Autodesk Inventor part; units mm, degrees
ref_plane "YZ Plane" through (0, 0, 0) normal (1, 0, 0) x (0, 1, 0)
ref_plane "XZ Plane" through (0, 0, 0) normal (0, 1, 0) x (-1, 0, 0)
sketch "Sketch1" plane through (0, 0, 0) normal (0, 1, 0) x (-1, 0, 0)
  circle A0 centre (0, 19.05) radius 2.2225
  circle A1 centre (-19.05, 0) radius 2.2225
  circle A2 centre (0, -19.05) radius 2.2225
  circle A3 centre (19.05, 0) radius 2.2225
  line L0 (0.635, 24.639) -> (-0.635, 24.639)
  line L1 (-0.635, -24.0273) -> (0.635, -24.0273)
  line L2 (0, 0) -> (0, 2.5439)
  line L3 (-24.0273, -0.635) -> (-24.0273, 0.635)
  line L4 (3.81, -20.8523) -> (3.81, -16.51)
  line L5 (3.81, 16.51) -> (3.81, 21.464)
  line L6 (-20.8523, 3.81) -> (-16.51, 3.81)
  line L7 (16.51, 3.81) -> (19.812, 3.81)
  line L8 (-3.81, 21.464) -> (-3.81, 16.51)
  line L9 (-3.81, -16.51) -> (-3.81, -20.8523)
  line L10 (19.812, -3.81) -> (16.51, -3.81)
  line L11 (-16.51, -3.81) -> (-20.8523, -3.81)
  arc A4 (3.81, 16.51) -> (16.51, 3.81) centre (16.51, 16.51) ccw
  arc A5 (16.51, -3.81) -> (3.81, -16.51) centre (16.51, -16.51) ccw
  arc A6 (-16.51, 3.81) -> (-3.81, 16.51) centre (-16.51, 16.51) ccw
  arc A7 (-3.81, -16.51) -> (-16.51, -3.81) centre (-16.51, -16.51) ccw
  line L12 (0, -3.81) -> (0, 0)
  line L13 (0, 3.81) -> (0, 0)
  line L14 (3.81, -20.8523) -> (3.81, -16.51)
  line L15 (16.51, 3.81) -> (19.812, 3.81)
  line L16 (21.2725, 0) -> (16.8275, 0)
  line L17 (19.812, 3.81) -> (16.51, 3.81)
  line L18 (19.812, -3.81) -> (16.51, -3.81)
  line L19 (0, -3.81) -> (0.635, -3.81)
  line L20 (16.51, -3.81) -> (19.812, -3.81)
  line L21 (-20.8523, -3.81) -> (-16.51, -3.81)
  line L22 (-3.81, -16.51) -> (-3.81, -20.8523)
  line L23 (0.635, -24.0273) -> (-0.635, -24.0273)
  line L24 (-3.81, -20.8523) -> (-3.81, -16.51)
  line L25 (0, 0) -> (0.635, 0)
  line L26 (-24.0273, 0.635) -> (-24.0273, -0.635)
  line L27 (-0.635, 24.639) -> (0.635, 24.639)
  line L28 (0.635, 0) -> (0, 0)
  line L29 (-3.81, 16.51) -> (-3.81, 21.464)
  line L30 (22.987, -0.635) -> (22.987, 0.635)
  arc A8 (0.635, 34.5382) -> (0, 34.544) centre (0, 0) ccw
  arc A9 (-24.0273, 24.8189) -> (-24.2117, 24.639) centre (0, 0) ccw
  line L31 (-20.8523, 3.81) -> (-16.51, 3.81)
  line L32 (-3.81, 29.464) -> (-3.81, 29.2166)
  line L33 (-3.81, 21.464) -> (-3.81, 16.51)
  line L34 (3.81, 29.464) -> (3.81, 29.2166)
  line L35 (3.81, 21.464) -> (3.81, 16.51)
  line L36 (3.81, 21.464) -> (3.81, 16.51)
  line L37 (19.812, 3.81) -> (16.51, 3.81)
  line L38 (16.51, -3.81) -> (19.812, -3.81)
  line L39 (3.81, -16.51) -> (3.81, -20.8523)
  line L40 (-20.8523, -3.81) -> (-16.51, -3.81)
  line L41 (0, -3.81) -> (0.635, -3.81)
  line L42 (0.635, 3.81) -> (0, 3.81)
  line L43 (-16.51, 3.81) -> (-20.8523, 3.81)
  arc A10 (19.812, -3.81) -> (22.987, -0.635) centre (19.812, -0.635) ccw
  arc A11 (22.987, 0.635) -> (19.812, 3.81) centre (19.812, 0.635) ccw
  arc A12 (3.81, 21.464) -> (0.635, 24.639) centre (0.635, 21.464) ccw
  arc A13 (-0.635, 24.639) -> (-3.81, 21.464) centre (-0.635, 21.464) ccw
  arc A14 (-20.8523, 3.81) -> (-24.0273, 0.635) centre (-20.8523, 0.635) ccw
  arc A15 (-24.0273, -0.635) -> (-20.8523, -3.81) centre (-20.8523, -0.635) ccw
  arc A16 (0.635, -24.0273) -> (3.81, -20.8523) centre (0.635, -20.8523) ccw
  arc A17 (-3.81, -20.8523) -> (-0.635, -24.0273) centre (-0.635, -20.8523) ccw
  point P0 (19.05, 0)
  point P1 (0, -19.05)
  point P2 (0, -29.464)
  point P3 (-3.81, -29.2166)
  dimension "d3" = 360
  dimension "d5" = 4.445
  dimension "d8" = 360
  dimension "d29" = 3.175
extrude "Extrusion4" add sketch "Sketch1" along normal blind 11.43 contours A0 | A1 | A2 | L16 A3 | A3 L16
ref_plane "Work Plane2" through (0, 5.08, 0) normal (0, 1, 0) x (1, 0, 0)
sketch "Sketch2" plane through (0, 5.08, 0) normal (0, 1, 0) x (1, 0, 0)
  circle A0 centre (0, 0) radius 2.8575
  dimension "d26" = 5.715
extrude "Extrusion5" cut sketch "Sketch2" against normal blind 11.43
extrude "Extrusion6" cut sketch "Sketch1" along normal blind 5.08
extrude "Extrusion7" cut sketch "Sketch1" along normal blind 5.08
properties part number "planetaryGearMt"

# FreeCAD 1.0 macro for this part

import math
import FreeCAD as App
import Part
import Sketcher
from FreeCAD import Vector
Q = App.Units.Quantity

doc = App.newDocument("Part")
params = doc.addObject("Spreadsheet::Sheet", "Params")
for row, (alias, value) in enumerate([
    ("sketch1_diameter", "0.175 in"),
    ("pad1_length", "0.45 in"),
    ("sketch2_diameter", "0.225 in"),
    ("pocket1_length", "0.45 in"),
    ("sketch3_diameter", "0.175 in"),
    ("sketch3_radius", "0.125 in"),
    ("sketch3_radius2", "0.5 in"),
    ("sketch3_width", "0.13 in"),
    ("pocket2_length", "0.2 in"),
    ("sketch4_diameter", "0.175 in"),
    ("sketch4_radius", "0.125 in"),
    ("sketch4_radius2", "0.5 in"),
    ("sketch4_width", "0.13 in"),
    ("pocket3_length", "0.2 in"),
], start=1):
    params.set(f"A{row}", alias)
    params.set(f"B{row}", "=" + value)
    params.setAlias(f"B{row}", alias)

body = doc.addObject("PartDesign::Body", "Body")
body.AllowCompound = True

sketch1 = body.newObject("Sketcher::SketchObject", "Sketch")
sketch1.AttachmentSupport = (doc.getObject("XZ_Plane"), [""])
sketch1.MapMode = "FlatFace"
sketch1.addGeometry([
    Part.Circle(Vector(0, 19.05, 0), Vector(0, 0, 1), 2.2225),
    Part.Circle(Vector(19.05, 0, 0), Vector(0, 0, 1), 2.2225),
    Part.Circle(Vector(0, -19.05, 0), Vector(0, 0, 1), 2.2225),
    Part.Circle(Vector(-19.05, 0, 0), Vector(0, 0, 1), 2.2225),
], False)
sketch1.addConstraint([
    Sketcher.Constraint("Equal", 0, 1),
    Sketcher.Constraint("Equal", 1, 2),
    Sketcher.Constraint("Equal", 2, 3),
    Sketcher.Constraint("Symmetric", 0, 3, 2, 3, -1, 1),
    Sketcher.Constraint("Symmetric", 1, 3, 3, 3, -1, 1),
    Sketcher.Constraint("PointOnObject", 0, 3, -2),
    Sketcher.Constraint("PointOnObject", 1, 3, -1),
    Sketcher.Constraint("Diameter", 0, Q("0.175 in")),
    Sketcher.Constraint("DistanceY", 2, 3, 0, 3, Q("1.5 in")),
    Sketcher.Constraint("DistanceX", 3, 3, 1, 3, Q("1.5 in")),
])
sketch1.setExpression("Constraints[7]", "Params.sketch1_diameter")
pad1 = body.newObject("PartDesign::Pad", "Pad")
pad1.Profile = sketch1
pad1.setExpression("Length", "Params.pad1_length")
pad1.Reversed = True

sketch2 = body.newObject("Sketcher::SketchObject", "Sketch001")
sketch2.AttachmentSupport = (doc.getObject("XZ_Plane"), [""])
sketch2.MapMode = "FlatFace"
sketch2.AttachmentOffset = App.Placement(Vector(0, 0, -0.2 * 25.4), App.Rotation())
sketch2.addGeometry(Part.Circle(Vector(0, 0, 0), Vector(0, 0, 1), 2.8575), False)
sketch2.addConstraint([
    Sketcher.Constraint("Coincident", 0, 3, -1, 1),
    Sketcher.Constraint("Diameter", 0, Q("0.225 in")),
])
sketch2.setExpression("Constraints[1]", "Params.sketch2_diameter")
pocket1 = body.newObject("PartDesign::Pocket", "Pocket")
pocket1.Profile = sketch2
pocket1.setExpression("Length", "Params.pocket1_length")
pocket1.Reversed = True

sketch3 = body.newObject("Sketcher::SketchObject", "Sketch002")
sketch3.AttachmentSupport = (doc.getObject("XZ_Plane"), [""])
sketch3.MapMode = "FlatFace"
sketch3.addGeometry([
    Part.ArcOfCircle(Part.Circle(Vector(-0.635, 21.464, 0), Vector(0, 0, 1), 3.175), math.radians(90), math.radians(180)),
    Part.LineSegment(Vector(-0.635, 24.639, 0), Vector(0.635, 24.639, 0)),
    Part.ArcOfCircle(Part.Circle(Vector(0.635, 21.464, 0), Vector(0, 0, 1), 3.175), math.radians(0), math.radians(90)),
    Part.LineSegment(Vector(3.81, 21.464, 0), Vector(3.81, 16.51, 0)),
    Part.ArcOfCircle(Part.Circle(Vector(16.51, 16.51, 0), Vector(0, 0, 1), 12.7), math.radians(180), math.radians(270)),
    Part.LineSegment(Vector(16.51, 3.81, 0), Vector(20.8523, 3.81, 0)),
    Part.ArcOfCircle(Part.Circle(Vector(20.8523, 0.635, 0), Vector(0, 0, 1), 3.175), math.radians(0), math.radians(90)),
    Part.LineSegment(Vector(24.0273, 0.635, 0), Vector(24.0273, -0.635, 0)),
    Part.ArcOfCircle(Part.Circle(Vector(20.8523, -0.635, 0), Vector(0, 0, 1), 3.175), math.radians(-90), math.radians(0)),
    Part.LineSegment(Vector(20.8523, -3.81, 0), Vector(16.51, -3.81, 0)),
    Part.ArcOfCircle(Part.Circle(Vector(16.51, -16.51, 0), Vector(0, 0, 1), 12.7), math.radians(90), math.radians(180)),
    Part.LineSegment(Vector(3.81, -16.51, 0), Vector(3.81, -20.8523, 0)),
    Part.ArcOfCircle(Part.Circle(Vector(0.635, -20.8523, 0), Vector(0, 0, 1), 3.175), math.radians(-90), math.radians(0)),
    Part.LineSegment(Vector(0.635, -24.0273, 0), Vector(-0.635, -24.0273, 0)),
    Part.ArcOfCircle(Part.Circle(Vector(-0.635, -20.8523, 0), Vector(0, 0, 1), 3.175), math.radians(180), math.radians(270)),
    Part.LineSegment(Vector(-3.81, -20.8523, 0), Vector(-3.81, -16.51, 0)),
    Part.ArcOfCircle(Part.Circle(Vector(-16.51, -16.51, 0), Vector(0, 0, 1), 12.7), math.radians(0), math.radians(90)),
    Part.LineSegment(Vector(-16.51, -3.81, 0), Vector(-19.812, -3.81, 0)),
    Part.ArcOfCircle(Part.Circle(Vector(-19.812, -0.635, 0), Vector(0, 0, 1), 3.175), math.radians(180), math.radians(270)),
    Part.LineSegment(Vector(-22.987, -0.635, 0), Vector(-22.987, 0.635, 0)),
    Part.ArcOfCircle(Part.Circle(Vector(-19.812, 0.635, 0), Vector(0, 0, 1), 3.175), math.radians(90), math.radians(180)),
    Part.LineSegment(Vector(-19.812, 3.81, 0), Vector(-16.51, 3.81, 0)),
    Part.ArcOfCircle(Part.Circle(Vector(-16.51, 16.51, 0), Vector(0, 0, 1), 12.7), math.radians(-90), math.radians(0)),
    Part.LineSegment(Vector(-3.81, 16.51, 0), Vector(-3.81, 21.464, 0)),
    Part.Circle(Vector(19.05, 0, 0), Vector(0, 0, 1), 2.2225),
    Part.Circle(Vector(0, -19.05, 0), Vector(0, 0, 1), 2.2225),
    Part.Circle(Vector(-19.05, 0, 0), Vector(0, 0, 1), 2.2225),
    Part.Circle(Vector(0, 19.05, 0), Vector(0, 0, 1), 2.2225),
], False)
sketch3.addConstraint([
    Sketcher.Constraint("Tangent", 0, 1, 1, 1),
    Sketcher.Constraint("Tangent", 1, 2, 2, 2),
    Sketcher.Constraint("Tangent", 2, 1, 3, 1),
    Sketcher.Constraint("Tangent", 3, 2, 4, 1),
    Sketcher.Constraint("Tangent", 4, 2, 5, 1),
    Sketcher.Constraint("Tangent", 5, 2, 6, 2),
    Sketcher.Constraint("Tangent", 6, 1, 7, 1),
    Sketcher.Constraint("Tangent", 7, 2, 8, 2),
    Sketcher.Constraint("Tangent", 8, 1, 9, 1),
    Sketcher.Constraint("Tangent", 9, 2, 10, 1),
    Sketcher.Constraint("Tangent", 10, 2, 11, 1),
    Sketcher.Constraint("Tangent", 11, 2, 12, 2),
    Sketcher.Constraint("Tangent", 12, 1, 13, 1),
    Sketcher.Constraint("Tangent", 13, 2, 14, 2),
    Sketcher.Constraint("Tangent", 14, 1, 15, 1),
    Sketcher.Constraint("Tangent", 15, 2, 16, 1),
    Sketcher.Constraint("Tangent", 16, 2, 17, 1),
    Sketcher.Constraint("Tangent", 17, 2, 18, 2),
    Sketcher.Constraint("Tangent", 18, 1, 19, 1),
    Sketcher.Constraint("Tangent", 19, 2, 20, 2),
    Sketcher.Constraint("Tangent", 20, 1, 21, 1),
    Sketcher.Constraint("Tangent", 21, 2, 22, 1),
    Sketcher.Constraint("Tangent", 22, 2, 23, 1),
    Sketcher.Constraint("Tangent", 23, 2, 0, 2),
    Sketcher.Constraint("Horizontal", 1),
    Sketcher.Constraint("Vertical", 3),
    Sketcher.Constraint("Horizontal", 5),
    Sketcher.Constraint("Vertical", 7),
    Sketcher.Constraint("Horizontal", 9),
    Sketcher.Constraint("Vertical", 11),
    Sketcher.Constraint("Horizontal", 13),
    Sketcher.Constraint("Vertical", 15),
    Sketcher.Constraint("Horizontal", 17),
    Sketcher.Constraint("Vertical", 19),
    Sketcher.Constraint("Horizontal", 21),
    Sketcher.Constraint("Vertical", 23),
    Sketcher.Constraint("Equal", 0, 2),
    Sketcher.Constraint("Equal", 2, 6),
    Sketcher.Constraint("Equal", 6, 8),
    Sketcher.Constraint("Equal", 4, 10),
    Sketcher.Constraint("Equal", 8, 12),
    Sketcher.Constraint("Equal", 12, 14),
    Sketcher.Constraint("Equal", 10, 16),
    Sketcher.Constraint("Equal", 14, 18),
    Sketcher.Constraint("Equal", 18, 20),
    Sketcher.Constraint("Equal", 16, 22),
    Sketcher.Constraint("Equal", 24, 25),
    Sketcher.Constraint("Equal", 25, 26),
    Sketcher.Constraint("Equal", 26, 27),
    Sketcher.Constraint("Symmetric", 4, 3, 16, 3, -1, 1),
    Sketcher.Constraint("Symmetric", 10, 3, 22, 3, -1, 1),
    Sketcher.Constraint("Symmetric", 24, 3, 26, 3, -1, 1),
    Sketcher.Constraint("Symmetric", 25, 3, 27, 3, -1, 1),
    Sketcher.Constraint("Symmetric", 10, 3, 16, 3, -2),
    Sketcher.Constraint("PointOnObject", 24, 3, -1),
    Sketcher.Constraint("PointOnObject", 25, 3, -2),
    Sketcher.Constraint("Equal", 13, 7),
    Sketcher.Constraint("Equal", 9, 11),
    Sketcher.Constraint("Diameter", 24, Q("0.175 in")),
    Sketcher.Constraint("Radius", 0, Q("0.125 in")),
    Sketcher.Constraint("Radius", 4, Q("0.5 in")),
    Sketcher.Constraint("DistanceX", 0, 3, 2, 1, Q("0.175 in")),
    Sketcher.Constraint("DistanceX", 17, 2, 17, 1, Q("0.13 in")),
    Sketcher.Constraint("DistanceX", 4, 3, 24, 3, Q("0.1 in")),
    Sketcher.Constraint("DistanceY", 25, 3, 10, 3, Q("0.1 in")),
    Sketcher.Constraint("DistanceY", 12, 3, 2, 3, Q("1.666 in")),
    Sketcher.Constraint("DistanceX", 5, 1, 5, 2, Q("4.3423 mm")),
])
sketch3.setExpression("Constraints[58]", "Params.sketch3_diameter")
sketch3.setExpression("Constraints[59]", "Params.sketch3_radius")
sketch3.setExpression("Constraints[60]", "Params.sketch3_radius2")
sketch3.setExpression("Constraints[62]", "Params.sketch3_width")
pocket2 = body.newObject("PartDesign::Pocket", "Pocket001")
pocket2.Profile = sketch3
pocket2.setExpression("Length", "Params.pocket2_length")

sketch4 = body.newObject("Sketcher::SketchObject", "Sketch003")
sketch4.AttachmentSupport = (doc.getObject("XZ_Plane"), [""])
sketch4.MapMode = "FlatFace"
sketch4.addGeometry([
    Part.ArcOfCircle(Part.Circle(Vector(-0.635, 21.464, 0), Vector(0, 0, 1), 3.175), math.radians(90), math.radians(180)),
    Part.LineSegment(Vector(-0.635, 24.639, 0), Vector(0.635, 24.639, 0)),
    Part.ArcOfCircle(Part.Circle(Vector(0.635, 21.464, 0), Vector(0, 0, 1), 3.175), math.radians(0), math.radians(90)),
    Part.LineSegment(Vector(3.81, 21.464, 0), Vector(3.81, 16.51, 0)),
    Part.ArcOfCircle(Part.Circle(Vector(16.51, 16.51, 0), Vector(0, 0, 1), 12.7), math.radians(180), math.radians(270)),
    Part.LineSegment(Vector(16.51, 3.81, 0), Vector(20.8523, 3.81, 0)),
    Part.ArcOfCircle(Part.Circle(Vector(20.8523, 0.635, 0), Vector(0, 0, 1), 3.175), math.radians(0), math.radians(90)),
    Part.LineSegment(Vector(24.0273, 0.635, 0), Vector(24.0273, -0.635, 0)),
    Part.ArcOfCircle(Part.Circle(Vector(20.8523, -0.635, 0), Vector(0, 0, 1), 3.175), math.radians(-90), math.radians(0)),
    Part.LineSegment(Vector(20.8523, -3.81, 0), Vector(16.51, -3.81, 0)),
    Part.ArcOfCircle(Part.Circle(Vector(16.51, -16.51, 0), Vector(0, 0, 1), 12.7), math.radians(90), math.radians(180)),
    Part.LineSegment(Vector(3.81, -16.51, 0), Vector(3.81, -20.8523, 0)),
    Part.ArcOfCircle(Part.Circle(Vector(0.635, -20.8523, 0), Vector(0, 0, 1), 3.175), math.radians(-90), math.radians(0)),
    Part.LineSegment(Vector(0.635, -24.0273, 0), Vector(-0.635, -24.0273, 0)),
    Part.ArcOfCircle(Part.Circle(Vector(-0.635, -20.8523, 0), Vector(0, 0, 1), 3.175), math.radians(180), math.radians(270)),
    Part.LineSegment(Vector(-3.81, -20.8523, 0), Vector(-3.81, -16.51, 0)),
    Part.ArcOfCircle(Part.Circle(Vector(-16.51, -16.51, 0), Vector(0, 0, 1), 12.7), math.radians(0), math.radians(90)),
    Part.LineSegment(Vector(-16.51, -3.81, 0), Vector(-19.812, -3.81, 0)),
    Part.ArcOfCircle(Part.Circle(Vector(-19.812, -0.635, 0), Vector(0, 0, 1), 3.175), math.radians(180), math.radians(270)),
    Part.LineSegment(Vector(-22.987, -0.635, 0), Vector(-22.987, 0.635, 0)),
    Part.ArcOfCircle(Part.Circle(Vector(-19.812, 0.635, 0), Vector(0, 0, 1), 3.175), math.radians(90), math.radians(180)),
    Part.LineSegment(Vector(-19.812, 3.81, 0), Vector(-16.51, 3.81, 0)),
    Part.ArcOfCircle(Part.Circle(Vector(-16.51, 16.51, 0), Vector(0, 0, 1), 12.7), math.radians(-90), math.radians(0)),
    Part.LineSegment(Vector(-3.81, 16.51, 0), Vector(-3.81, 21.464, 0)),
    Part.Circle(Vector(19.05, 0, 0), Vector(0, 0, 1), 2.2225),
    Part.Circle(Vector(0, -19.05, 0), Vector(0, 0, 1), 2.2225),
    Part.Circle(Vector(-19.05, 0, 0), Vector(0, 0, 1), 2.2225),
    Part.Circle(Vector(0, 19.05, 0), Vector(0, 0, 1), 2.2225),
], False)
sketch4.addConstraint([
    Sketcher.Constraint("Tangent", 0, 1, 1, 1),
    Sketcher.Constraint("Tangent", 1, 2, 2, 2),
    Sketcher.Constraint("Tangent", 2, 1, 3, 1),
    Sketcher.Constraint("Tangent", 3, 2, 4, 1),
    Sketcher.Constraint("Tangent", 4, 2, 5, 1),
    Sketcher.Constraint("Tangent", 5, 2, 6, 2),
    Sketcher.Constraint("Tangent", 6, 1, 7, 1),
    Sketcher.Constraint("Tangent", 7, 2, 8, 2),
    Sketcher.Constraint("Tangent", 8, 1, 9, 1),
    Sketcher.Constraint("Tangent", 9, 2, 10, 1),
    Sketcher.Constraint("Tangent", 10, 2, 11, 1),
    Sketcher.Constraint("Tangent", 11, 2, 12, 2),
    Sketcher.Constraint("Tangent", 12, 1, 13, 1),
    Sketcher.Constraint("Tangent", 13, 2, 14, 2),
    Sketcher.Constraint("Tangent", 14, 1, 15, 1),
    Sketcher.Constraint("Tangent", 15, 2, 16, 1),
    Sketcher.Constraint("Tangent", 16, 2, 17, 1),
    Sketcher.Constraint("Tangent", 17, 2, 18, 2),
    Sketcher.Constraint("Tangent", 18, 1, 19, 1),
    Sketcher.Constraint("Tangent", 19, 2, 20, 2),
    Sketcher.Constraint("Tangent", 20, 1, 21, 1),
    Sketcher.Constraint("Tangent", 21, 2, 22, 1),
    Sketcher.Constraint("Tangent", 22, 2, 23, 1),
    Sketcher.Constraint("Tangent", 23, 2, 0, 2),
    Sketcher.Constraint("Horizontal", 1),
    Sketcher.Constraint("Vertical", 3),
    Sketcher.Constraint("Horizontal", 5),
    Sketcher.Constraint("Vertical", 7),
    Sketcher.Constraint("Horizontal", 9),
    Sketcher.Constraint("Vertical", 11),
    Sketcher.Constraint("Horizontal", 13),
    Sketcher.Constraint("Vertical", 15),
    Sketcher.Constraint("Horizontal", 17),
    Sketcher.Constraint("Vertical", 19),
    Sketcher.Constraint("Horizontal", 21),
    Sketcher.Constraint("Vertical", 23),
    Sketcher.Constraint("Equal", 0, 2),
    Sketcher.Constraint("Equal", 2, 6),
    Sketcher.Constraint("Equal", 6, 8),
    Sketcher.Constraint("Equal", 4, 10),
    Sketcher.Constraint("Equal", 8, 12),
    Sketcher.Constraint("Equal", 12, 14),
    Sketcher.Constraint("Equal", 10, 16),
    Sketcher.Constraint("Equal", 14, 18),
    Sketcher.Constraint("Equal", 18, 20),
    Sketcher.Constraint("Equal", 16, 22),
    Sketcher.Constraint("Equal", 24, 25),
    Sketcher.Constraint("Equal", 25, 26),
    Sketcher.Constraint("Equal", 26, 27),
    Sketcher.Constraint("Symmetric", 4, 3, 16, 3, -1, 1),
    Sketcher.Constraint("Symmetric", 10, 3, 22, 3, -1, 1),
    Sketcher.Constraint("Symmetric", 24, 3, 26, 3, -1, 1),
    Sketcher.Constraint("Symmetric", 25, 3, 27, 3, -1, 1),
    Sketcher.Constraint("Symmetric", 10, 3, 16, 3, -2),
    Sketcher.Constraint("PointOnObject", 24, 3, -1),
    Sketcher.Constraint("PointOnObject", 25, 3, -2),
    Sketcher.Constraint("Equal", 13, 7),
    Sketcher.Constraint("Equal", 9, 11),
    Sketcher.Constraint("Diameter", 24, Q("0.175 in")),
    Sketcher.Constraint("Radius", 0, Q("0.125 in")),
    Sketcher.Constraint("Radius", 4, Q("0.5 in")),
    Sketcher.Constraint("DistanceX", 0, 3, 2, 1, Q("0.175 in")),
    Sketcher.Constraint("DistanceX", 17, 2, 17, 1, Q("0.13 in")),
    Sketcher.Constraint("DistanceX", 4, 3, 24, 3, Q("0.1 in")),
    Sketcher.Constraint("DistanceY", 25, 3, 10, 3, Q("0.1 in")),
    Sketcher.Constraint("DistanceY", 12, 3, 2, 3, Q("1.666 in")),
    Sketcher.Constraint("DistanceX", 5, 1, 5, 2, Q("4.3423 mm")),
])
sketch4.setExpression("Constraints[58]", "Params.sketch4_diameter")
sketch4.setExpression("Constraints[59]", "Params.sketch4_radius")
sketch4.setExpression("Constraints[60]", "Params.sketch4_radius2")
sketch4.setExpression("Constraints[62]", "Params.sketch4_width")
pocket3 = body.newObject("PartDesign::Pocket", "Pocket002")
pocket3.Profile = sketch4
pocket3.setExpression("Length", "Params.pocket3_length")

doc.recompute()
